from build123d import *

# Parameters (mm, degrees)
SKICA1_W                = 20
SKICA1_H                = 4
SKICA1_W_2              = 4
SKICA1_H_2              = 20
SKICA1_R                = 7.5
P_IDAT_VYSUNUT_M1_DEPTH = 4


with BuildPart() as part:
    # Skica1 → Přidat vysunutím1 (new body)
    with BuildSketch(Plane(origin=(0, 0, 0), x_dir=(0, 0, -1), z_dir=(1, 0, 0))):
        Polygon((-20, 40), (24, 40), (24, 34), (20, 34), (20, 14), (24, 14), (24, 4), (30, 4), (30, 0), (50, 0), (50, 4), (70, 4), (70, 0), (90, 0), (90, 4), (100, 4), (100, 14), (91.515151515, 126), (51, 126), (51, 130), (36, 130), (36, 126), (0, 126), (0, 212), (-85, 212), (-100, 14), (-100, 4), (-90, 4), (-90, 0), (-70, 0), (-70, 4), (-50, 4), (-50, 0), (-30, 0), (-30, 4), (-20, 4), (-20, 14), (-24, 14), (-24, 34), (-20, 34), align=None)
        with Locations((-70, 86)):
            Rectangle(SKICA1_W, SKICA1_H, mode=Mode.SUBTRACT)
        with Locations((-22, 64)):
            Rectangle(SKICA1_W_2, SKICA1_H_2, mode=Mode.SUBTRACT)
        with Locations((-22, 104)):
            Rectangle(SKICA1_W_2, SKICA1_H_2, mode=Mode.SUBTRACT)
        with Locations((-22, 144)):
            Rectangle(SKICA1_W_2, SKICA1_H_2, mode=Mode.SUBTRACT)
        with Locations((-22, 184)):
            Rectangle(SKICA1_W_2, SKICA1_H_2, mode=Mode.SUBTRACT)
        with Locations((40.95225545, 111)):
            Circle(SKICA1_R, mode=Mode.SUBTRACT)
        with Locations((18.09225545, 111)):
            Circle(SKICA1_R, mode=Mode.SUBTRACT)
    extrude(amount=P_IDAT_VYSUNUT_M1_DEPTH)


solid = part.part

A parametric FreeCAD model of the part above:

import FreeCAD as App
import Part
import Sketcher
from FreeCAD import Vector

doc = App.newDocument("Part")
body = doc.addObject("PartDesign::Body", "Body")

sketch1 = doc.addObject("Sketcher::SketchObject", "Sketch")
body.addObject(sketch1)
sketch1.AttachmentSupport = (doc.YZ_Plane, [""])
sketch1.MapMode = "FlatFace"
sketch1.addGeometry([
    Part.LineSegment(Vector(40, 20, 0), Vector(40, -24, 0)),
    Part.LineSegment(Vector(40, -24, 0), Vector(34, -24, 0)),
    Part.LineSegment(Vector(34, -24, 0), Vector(34, -20, 0)),
    Part.LineSegment(Vector(34, -20, 0), Vector(14, -20, 0)),
    Part.LineSegment(Vector(14, -20, 0), Vector(14, -24, 0)),
    Part.LineSegment(Vector(14, -24, 0), Vector(4, -24, 0)),
    Part.LineSegment(Vector(4, -24, 0), Vector(4, -30, 0)),
    Part.LineSegment(Vector(4, -30, 0), Vector(0, -30, 0)),
    Part.LineSegment(Vector(0, -30, 0), Vector(0, -50, 0)),
    Part.LineSegment(Vector(0, -50, 0), Vector(4, -50, 0)),
    Part.LineSegment(Vector(4, -50, 0), Vector(4, -70, 0)),
    Part.LineSegment(Vector(4, -70, 0), Vector(0, -70, 0)),
    Part.LineSegment(Vector(0, -70, 0), Vector(0, -90, 0)),
    Part.LineSegment(Vector(0, -90, 0), Vector(4, -90, 0)),
    Part.LineSegment(Vector(4, -90, 0), Vector(4, -100, 0)),
    Part.LineSegment(Vector(4, -100, 0), Vector(14, -100, 0)),
    Part.LineSegment(Vector(14, -100, 0), Vector(126, -91.5, 0)),
    Part.LineSegment(Vector(126, -91.5, 0), Vector(126, -51, 0)),
    Part.LineSegment(Vector(126, -51, 0), Vector(130, -51, 0)),
    Part.LineSegment(Vector(130, -51, 0), Vector(130, -36, 0)),
    Part.LineSegment(Vector(130, -36, 0), Vector(126, -36, 0)),
    Part.LineSegment(Vector(126, -36, 0), Vector(126, 0, 0)),
    Part.LineSegment(Vector(126, 0, 0), Vector(212, 0, 0)),
    Part.LineSegment(Vector(212, 0, 0), Vector(212, 85, 0)),
    Part.LineSegment(Vector(212, 85, 0), Vector(14, 100, 0)),
    Part.LineSegment(Vector(14, 100, 0), Vector(4, 100, 0)),
    Part.LineSegment(Vector(4, 100, 0), Vector(4, 90, 0)),
    Part.LineSegment(Vector(4, 90, 0), Vector(0, 90, 0)),
    Part.LineSegment(Vector(0, 90, 0), Vector(0, 70, 0)),
    Part.LineSegment(Vector(0, 70, 0), Vector(4, 70, 0)),
    Part.LineSegment(Vector(4, 70, 0), Vector(4, 50, 0)),
    Part.LineSegment(Vector(4, 50, 0), Vector(0, 50, 0)),
    Part.LineSegment(Vector(0, 50, 0), Vector(0, 30, 0)),
    Part.LineSegment(Vector(0, 30, 0), Vector(4, 30, 0)),
    Part.LineSegment(Vector(4, 30, 0), Vector(4, 20, 0)),
    Part.LineSegment(Vector(4, 20, 0), Vector(14, 20, 0)),
    Part.LineSegment(Vector(14, 20, 0), Vector(14, 24, 0)),
    Part.LineSegment(Vector(14, 24, 0), Vector(34, 24, 0)),
    Part.LineSegment(Vector(34, 24, 0), Vector(34, 20, 0)),
    Part.LineSegment(Vector(34, 20, 0), Vector(40, 20, 0)),
    Part.LineSegment(Vector(84, 60, 0), Vector(84, 80, 0)),
    Part.LineSegment(Vector(84, 80, 0), Vector(88, 80, 0)),
    Part.LineSegment(Vector(88, 80, 0), Vector(88, 60, 0)),
    Part.LineSegment(Vector(88, 60, 0), Vector(84, 60, 0)),
    Part.LineSegment(Vector(54, 20, 0), Vector(54, 24, 0)),
    Part.LineSegment(Vector(54, 24, 0), Vector(74, 24, 0)),
    Part.LineSegment(Vector(74, 24, 0), Vector(74, 20, 0)),
    Part.LineSegment(Vector(74, 20, 0), Vector(54, 20, 0)),
    Part.LineSegment(Vector(94, 20, 0), Vector(94, 24, 0)),
    Part.LineSegment(Vector(94, 24, 0), Vector(114, 24, 0)),
    Part.LineSegment(Vector(114, 24, 0), Vector(114, 20, 0)),
    Part.LineSegment(Vector(114, 20, 0), Vector(94, 20, 0)),
    Part.Circle(Vector(111, -18.1, 0), Vector(0, 0, 1), 7.5),
    Part.Circle(Vector(111, -41, 0), Vector(0, 0, 1), 7.5),
    Part.LineSegment(Vector(134, 20, 0), Vector(134, 24, 0)),
    Part.LineSegment(Vector(134, 24, 0), Vector(154, 24, 0)),
    Part.LineSegment(Vector(154, 24, 0), Vector(154, 20, 0)),
    Part.LineSegment(Vector(154, 20, 0), Vector(134, 20, 0)),
    Part.LineSegment(Vector(174, 20, 0), Vector(174, 24, 0)),
    Part.LineSegment(Vector(174, 24, 0), Vector(194, 24, 0)),
    Part.LineSegment(Vector(194, 24, 0), Vector(194, 20, 0)),
    Part.LineSegment(Vector(194, 20, 0), Vector(174, 20, 0)),
], False)
sketch1.addConstraint([
    Sketcher.Constraint("Coincident", 0, 2, 1, 1),
    Sketcher.Constraint("Coincident", 1, 2, 2, 1),
    Sketcher.Constraint("Coincident", 2, 2, 3, 1),
    Sketcher.Constraint("Coincident", 3, 2, 4, 1),
    Sketcher.Constraint("Coincident", 4, 2, 5, 1),
    Sketcher.Constraint("Coincident", 5, 2, 6, 1),
    Sketcher.Constraint("Coincident", 6, 2, 7, 1),
    Sketcher.Constraint("Coincident", 7, 2, 8, 1),
    Sketcher.Constraint("Coincident", 8, 2, 9, 1),
    Sketcher.Constraint("Coincident", 9, 2, 10, 1),
    Sketcher.Constraint("Coincident", 10, 2, 11, 1),
    Sketcher.Constraint("Coincident", 11, 2, 12, 1),
    Sketcher.Constraint("Coincident", 12, 2, 13, 1),
    Sketcher.Constraint("Coincident", 13, 2, 14, 1),
    Sketcher.Constraint("Coincident", 14, 2, 15, 1),
    Sketcher.Constraint("Coincident", 15, 2, 16, 1),
    Sketcher.Constraint("Coincident", 16, 2, 17, 1),
    Sketcher.Constraint("Coincident", 17, 2, 18, 1),
    Sketcher.Constraint("Coincident", 18, 2, 19, 1),
    Sketcher.Constraint("Coincident", 19, 2, 20, 1),
    Sketcher.Constraint("Coincident", 20, 2, 21, 1),
    Sketcher.Constraint("Coincident", 21, 2, 22, 1),
    Sketcher.Constraint("Coincident", 22, 2, 23, 1),
    Sketcher.Constraint("Coincident", 23, 2, 24, 1),
    Sketcher.Constraint("Coincident", 24, 2, 25, 1),
    Sketcher.Constraint("Coincident", 25, 2, 26, 1),
    Sketcher.Constraint("Coincident", 26, 2, 27, 1),
    Sketcher.Constraint("Coincident", 27, 2, 28, 1),
    Sketcher.Constraint("Coincident", 28, 2, 29, 1),
    Sketcher.Constraint("Coincident", 29, 2, 30, 1),
    Sketcher.Constraint("Coincident", 30, 2, 31, 1),
    Sketcher.Constraint("Coincident", 31, 2, 32, 1),
    Sketcher.Constraint("Coincident", 32, 2, 33, 1),
    Sketcher.Constraint("Coincident", 33, 2, 34, 1),
    Sketcher.Constraint("Coincident", 34, 2, 35, 1),
    Sketcher.Constraint("Coincident", 35, 2, 36, 1),
    Sketcher.Constraint("Coincident", 36, 2, 37, 1),
    Sketcher.Constraint("Coincident", 37, 2, 38, 1),
    Sketcher.Constraint("Coincident", 38, 2, 39, 1),
    Sketcher.Constraint("Coincident", 39, 2, 0, 1),
    Sketcher.Constraint("Coincident", 40, 2, 41, 1),
    Sketcher.Constraint("Coincident", 41, 2, 42, 1),
    Sketcher.Constraint("Coincident", 42, 2, 43, 1),
    Sketcher.Constraint("Coincident", 43, 2, 40, 1),
    Sketcher.Constraint("Coincident", 44, 2, 45, 1),
    Sketcher.Constraint("Coincident", 45, 2, 46, 1),
    Sketcher.Constraint("Coincident", 46, 2, 47, 1),
    Sketcher.Constraint("Coincident", 47, 2, 44, 1),
    Sketcher.Constraint("Coincident", 48, 2, 49, 1),
    Sketcher.Constraint("Coincident", 49, 2, 50, 1),
    Sketcher.Constraint("Coincident", 50, 2, 51, 1),
    Sketcher.Constraint("Coincident", 51, 2, 48, 1),
    Sketcher.Constraint("Coincident", 54, 2, 55, 1),
    Sketcher.Constraint("Coincident", 55, 2, 56, 1),
    Sketcher.Constraint("Coincident", 56, 2, 57, 1),
    Sketcher.Constraint("Coincident", 57, 2, 54, 1),
    Sketcher.Constraint("Coincident", 58, 2, 59, 1),
    Sketcher.Constraint("Coincident", 59, 2, 60, 1),
    Sketcher.Constraint("Coincident", 60, 2, 61, 1),
    Sketcher.Constraint("Coincident", 61, 2, 58, 1),
    Sketcher.Constraint("Vertical", 0),
    Sketcher.Constraint("Horizontal", 1),
    Sketcher.Constraint("Vertical", 2),
    Sketcher.Constraint("Horizontal", 3),
    Sketcher.Constraint("Vertical", 4),
    Sketcher.Constraint("Horizontal", 5),
    Sketcher.Constraint("Vertical", 6),
    Sketcher.Constraint("Horizontal", 7),
    Sketcher.Constraint("Vertical", 8),
    Sketcher.Constraint("Horizontal", 9),
    Sketcher.Constraint("Vertical", 10),
    Sketcher.Constraint("Horizontal", 11),
    Sketcher.Constraint("Vertical", 12),
    Sketcher.Constraint("Horizontal", 13),
    Sketcher.Constraint("Vertical", 14),
    Sketcher.Constraint("Horizontal", 15),
    Sketcher.Constraint("Vertical", 17),
    Sketcher.Constraint("Horizontal", 18),
    Sketcher.Constraint("Vertical", 19),
    Sketcher.Constraint("Horizontal", 20),
    Sketcher.Constraint("Vertical", 21),
    Sketcher.Constraint("Horizontal", 22),
    Sketcher.Constraint("Vertical", 23),
    Sketcher.Constraint("Horizontal", 25),
    Sketcher.Constraint("Vertical", 26),
    Sketcher.Constraint("Horizontal", 27),
    Sketcher.Constraint("Vertical", 28),
    Sketcher.Constraint("Horizontal", 29),
    Sketcher.Constraint("Vertical", 30),
    Sketcher.Constraint("Horizontal", 31),
    Sketcher.Constraint("Vertical", 32),
    Sketcher.Constraint("Horizontal", 33),
    Sketcher.Constraint("Vertical", 34),
    Sketcher.Constraint("Horizontal", 35),
    Sketcher.Constraint("Vertical", 36),
    Sketcher.Constraint("Horizontal", 37),
    Sketcher.Constraint("Vertical", 38),
    Sketcher.Constraint("Horizontal", 39),
    Sketcher.Constraint("Vertical", 40),
    Sketcher.Constraint("Horizontal", 41),
    Sketcher.Constraint("Vertical", 42),
    Sketcher.Constraint("Horizontal", 43),
    Sketcher.Constraint("Vertical", 44),
    Sketcher.Constraint("Horizontal", 45),
    Sketcher.Constraint("Vertical", 46),
    Sketcher.Constraint("Horizontal", 47),
    Sketcher.Constraint("Vertical", 48),
    Sketcher.Constraint("Horizontal", 49),
    Sketcher.Constraint("Vertical", 50),
    Sketcher.Constraint("Horizontal", 51),
    Sketcher.Constraint("Vertical", 54),
    Sketcher.Constraint("Horizontal", 55),
    Sketcher.Constraint("Vertical", 56),
    Sketcher.Constraint("Horizontal", 57),
    Sketcher.Constraint("Vertical", 58),
    Sketcher.Constraint("Horizontal", 59),
    Sketcher.Constraint("Vertical", 60),
    Sketcher.Constraint("Horizontal", 61),
    Sketcher.Constraint("Equal", 52, 53),
    Sketcher.Constraint("Symmetric", 12, 2, 27, 2, -1, 1),
    Sketcher.Constraint("Symmetric", 8, 2, 31, 2, -1, 1),
    Sketcher.Constraint("Symmetric", 15, 2, 24, 2, -1),
    Sketcher.Constraint("Symmetric", 11, 2, 28, 2, -1),
    Sketcher.Constraint("Symmetric", 7, 2, 32, 2, -1),
    Sketcher.Constraint("Symmetric", 3, 2, 35, 2, -1),
    Sketcher.Constraint("Symmetric", 1, 2, 37, 2, -1),
    Sketcher.Constraint("PointOnObject", 21, 2, -1),
    Sketcher.Constraint("Horizontal", 1, 2, 4, 2),
    Sketcher.Constraint("Horizontal", 35, 2, 38, 2),
    Sketcher.Constraint("Horizontal", 37, 2, 44, 2),
    Sketcher.Constraint("Horizontal", 39, 2, 46, 2),
    Sketcher.Constraint("Horizontal", 45, 2, 48, 2),
    Sketcher.Constraint("Horizontal", 47, 2, 50, 2),
    Sketcher.Constraint("Horizontal", 49, 2, 54, 2),
    Sketcher.Constraint("Horizontal", 51, 2, 56, 2),
    Sketcher.Constraint("Horizontal", 55, 2, 58, 2),
    Sketcher.Constraint("Horizontal", 57, 2, 60, 2),
    Sketcher.Constraint("Vertical", 52, 3, 53, 3),
    Sketcher.Constraint("Vertical", 6, 2, 9, 2),
    Sketcher.Constraint("Vertical", 10, 2, 13, 2),
    Sketcher.Constraint("Vertical", 4, 2, 15, 2),
    Sketcher.Constraint("Vertical", 17, 2, 20, 2),
    Sketcher.Constraint("Vertical", 14, 2, 25, 2),
    Sketcher.Constraint("Vertical", 26, 2, 29, 2),
    Sketcher.Constraint("Vertical", 30, 2, 33, 2),
    Sketcher.Constraint("Equal", 13, 18),
    Sketcher.Constraint("Equal", 33, 41),
    Sketcher.Constraint("Equal", 37, 45),
    Sketcher.Constraint("Equal", 47, 49),
    Sketcher.Constraint("Equal", 51, 55),
    Sketcher.Constraint("Equal", 57, 59),
    Sketcher.Constraint("Equal", 43, 2),
    Sketcher.Constraint("Equal", 39, 6),
    Sketcher.Constraint("Equal", 61, 8),
    Sketcher.Constraint("Equal", 8, 10),
    Sketcher.Constraint("Equal", 10, 12),
    Sketcher.Constraint("Equal", 35, 14),
    Sketcher.Constraint("Equal", 26, 34),
    Sketcher.Constraint("Equal", 32, 40),
    Sketcher.Constraint("Diameter", 52, 15.0),
    Sketcher.Constraint("DistanceX", 1, 2, 1, 1, 6.0),
    Sketcher.Constraint("DistanceX", 3, 2, 3, 1, 20.0),
    Sketcher.Constraint("DistanceX", 5, 2, 5, 1, 10.0),
    Sketcher.Constraint("DistanceX", 22, 1, 22, 2, 86.0),
    Sketcher.Constraint("DistanceY", 0, 2, 0, 1, 44.0),
    Sketcher.Constraint("DistanceY", 19, 1, 19, 2, 15.0),
    Sketcher.Constraint("DistanceY", 21, 1, 21, 2, 36.0),
    Sketcher.Constraint("DistanceY", 23, 1, 23, 2, 85.0),
    Sketcher.Constraint("DistanceX", -1, 1, 52, 3, 111.0),
    Sketcher.Constraint("DistanceX", -1, 1, 16, 2, 126.0),
    Sketcher.Constraint("DistanceX", -1, 1, 40, 2, 84.0),
    Sketcher.Constraint("DistanceY", -1, 1, 40, 2, 80.0),
    Sketcher.Constraint("DistanceX", -1, 1, 44, 2, 54.0),
    Sketcher.Constraint("DistanceX", -1, 1, 48, 2, 94.0),
    Sketcher.Constraint("DistanceX", -1, 1, 54, 2, 134.0),
    Sketcher.Constraint("DistanceX", -1, 1, 58, 2, 174.0),
    Sketcher.Constraint("DistanceY", 17, 1, 17, 2, 40.515152),
    Sketcher.Constraint("DistanceY", 52, 3, -1, 1, 18.092255),
    Sketcher.Constraint("DistanceY", 53, 3, -1, 1, 40.952255),
])
pad1 = doc.addObject("PartDesign::Pad", "Pad")
body.addObject(pad1)
pad1.Profile = sketch1
pad1.Length = 4

doc.recompute()
